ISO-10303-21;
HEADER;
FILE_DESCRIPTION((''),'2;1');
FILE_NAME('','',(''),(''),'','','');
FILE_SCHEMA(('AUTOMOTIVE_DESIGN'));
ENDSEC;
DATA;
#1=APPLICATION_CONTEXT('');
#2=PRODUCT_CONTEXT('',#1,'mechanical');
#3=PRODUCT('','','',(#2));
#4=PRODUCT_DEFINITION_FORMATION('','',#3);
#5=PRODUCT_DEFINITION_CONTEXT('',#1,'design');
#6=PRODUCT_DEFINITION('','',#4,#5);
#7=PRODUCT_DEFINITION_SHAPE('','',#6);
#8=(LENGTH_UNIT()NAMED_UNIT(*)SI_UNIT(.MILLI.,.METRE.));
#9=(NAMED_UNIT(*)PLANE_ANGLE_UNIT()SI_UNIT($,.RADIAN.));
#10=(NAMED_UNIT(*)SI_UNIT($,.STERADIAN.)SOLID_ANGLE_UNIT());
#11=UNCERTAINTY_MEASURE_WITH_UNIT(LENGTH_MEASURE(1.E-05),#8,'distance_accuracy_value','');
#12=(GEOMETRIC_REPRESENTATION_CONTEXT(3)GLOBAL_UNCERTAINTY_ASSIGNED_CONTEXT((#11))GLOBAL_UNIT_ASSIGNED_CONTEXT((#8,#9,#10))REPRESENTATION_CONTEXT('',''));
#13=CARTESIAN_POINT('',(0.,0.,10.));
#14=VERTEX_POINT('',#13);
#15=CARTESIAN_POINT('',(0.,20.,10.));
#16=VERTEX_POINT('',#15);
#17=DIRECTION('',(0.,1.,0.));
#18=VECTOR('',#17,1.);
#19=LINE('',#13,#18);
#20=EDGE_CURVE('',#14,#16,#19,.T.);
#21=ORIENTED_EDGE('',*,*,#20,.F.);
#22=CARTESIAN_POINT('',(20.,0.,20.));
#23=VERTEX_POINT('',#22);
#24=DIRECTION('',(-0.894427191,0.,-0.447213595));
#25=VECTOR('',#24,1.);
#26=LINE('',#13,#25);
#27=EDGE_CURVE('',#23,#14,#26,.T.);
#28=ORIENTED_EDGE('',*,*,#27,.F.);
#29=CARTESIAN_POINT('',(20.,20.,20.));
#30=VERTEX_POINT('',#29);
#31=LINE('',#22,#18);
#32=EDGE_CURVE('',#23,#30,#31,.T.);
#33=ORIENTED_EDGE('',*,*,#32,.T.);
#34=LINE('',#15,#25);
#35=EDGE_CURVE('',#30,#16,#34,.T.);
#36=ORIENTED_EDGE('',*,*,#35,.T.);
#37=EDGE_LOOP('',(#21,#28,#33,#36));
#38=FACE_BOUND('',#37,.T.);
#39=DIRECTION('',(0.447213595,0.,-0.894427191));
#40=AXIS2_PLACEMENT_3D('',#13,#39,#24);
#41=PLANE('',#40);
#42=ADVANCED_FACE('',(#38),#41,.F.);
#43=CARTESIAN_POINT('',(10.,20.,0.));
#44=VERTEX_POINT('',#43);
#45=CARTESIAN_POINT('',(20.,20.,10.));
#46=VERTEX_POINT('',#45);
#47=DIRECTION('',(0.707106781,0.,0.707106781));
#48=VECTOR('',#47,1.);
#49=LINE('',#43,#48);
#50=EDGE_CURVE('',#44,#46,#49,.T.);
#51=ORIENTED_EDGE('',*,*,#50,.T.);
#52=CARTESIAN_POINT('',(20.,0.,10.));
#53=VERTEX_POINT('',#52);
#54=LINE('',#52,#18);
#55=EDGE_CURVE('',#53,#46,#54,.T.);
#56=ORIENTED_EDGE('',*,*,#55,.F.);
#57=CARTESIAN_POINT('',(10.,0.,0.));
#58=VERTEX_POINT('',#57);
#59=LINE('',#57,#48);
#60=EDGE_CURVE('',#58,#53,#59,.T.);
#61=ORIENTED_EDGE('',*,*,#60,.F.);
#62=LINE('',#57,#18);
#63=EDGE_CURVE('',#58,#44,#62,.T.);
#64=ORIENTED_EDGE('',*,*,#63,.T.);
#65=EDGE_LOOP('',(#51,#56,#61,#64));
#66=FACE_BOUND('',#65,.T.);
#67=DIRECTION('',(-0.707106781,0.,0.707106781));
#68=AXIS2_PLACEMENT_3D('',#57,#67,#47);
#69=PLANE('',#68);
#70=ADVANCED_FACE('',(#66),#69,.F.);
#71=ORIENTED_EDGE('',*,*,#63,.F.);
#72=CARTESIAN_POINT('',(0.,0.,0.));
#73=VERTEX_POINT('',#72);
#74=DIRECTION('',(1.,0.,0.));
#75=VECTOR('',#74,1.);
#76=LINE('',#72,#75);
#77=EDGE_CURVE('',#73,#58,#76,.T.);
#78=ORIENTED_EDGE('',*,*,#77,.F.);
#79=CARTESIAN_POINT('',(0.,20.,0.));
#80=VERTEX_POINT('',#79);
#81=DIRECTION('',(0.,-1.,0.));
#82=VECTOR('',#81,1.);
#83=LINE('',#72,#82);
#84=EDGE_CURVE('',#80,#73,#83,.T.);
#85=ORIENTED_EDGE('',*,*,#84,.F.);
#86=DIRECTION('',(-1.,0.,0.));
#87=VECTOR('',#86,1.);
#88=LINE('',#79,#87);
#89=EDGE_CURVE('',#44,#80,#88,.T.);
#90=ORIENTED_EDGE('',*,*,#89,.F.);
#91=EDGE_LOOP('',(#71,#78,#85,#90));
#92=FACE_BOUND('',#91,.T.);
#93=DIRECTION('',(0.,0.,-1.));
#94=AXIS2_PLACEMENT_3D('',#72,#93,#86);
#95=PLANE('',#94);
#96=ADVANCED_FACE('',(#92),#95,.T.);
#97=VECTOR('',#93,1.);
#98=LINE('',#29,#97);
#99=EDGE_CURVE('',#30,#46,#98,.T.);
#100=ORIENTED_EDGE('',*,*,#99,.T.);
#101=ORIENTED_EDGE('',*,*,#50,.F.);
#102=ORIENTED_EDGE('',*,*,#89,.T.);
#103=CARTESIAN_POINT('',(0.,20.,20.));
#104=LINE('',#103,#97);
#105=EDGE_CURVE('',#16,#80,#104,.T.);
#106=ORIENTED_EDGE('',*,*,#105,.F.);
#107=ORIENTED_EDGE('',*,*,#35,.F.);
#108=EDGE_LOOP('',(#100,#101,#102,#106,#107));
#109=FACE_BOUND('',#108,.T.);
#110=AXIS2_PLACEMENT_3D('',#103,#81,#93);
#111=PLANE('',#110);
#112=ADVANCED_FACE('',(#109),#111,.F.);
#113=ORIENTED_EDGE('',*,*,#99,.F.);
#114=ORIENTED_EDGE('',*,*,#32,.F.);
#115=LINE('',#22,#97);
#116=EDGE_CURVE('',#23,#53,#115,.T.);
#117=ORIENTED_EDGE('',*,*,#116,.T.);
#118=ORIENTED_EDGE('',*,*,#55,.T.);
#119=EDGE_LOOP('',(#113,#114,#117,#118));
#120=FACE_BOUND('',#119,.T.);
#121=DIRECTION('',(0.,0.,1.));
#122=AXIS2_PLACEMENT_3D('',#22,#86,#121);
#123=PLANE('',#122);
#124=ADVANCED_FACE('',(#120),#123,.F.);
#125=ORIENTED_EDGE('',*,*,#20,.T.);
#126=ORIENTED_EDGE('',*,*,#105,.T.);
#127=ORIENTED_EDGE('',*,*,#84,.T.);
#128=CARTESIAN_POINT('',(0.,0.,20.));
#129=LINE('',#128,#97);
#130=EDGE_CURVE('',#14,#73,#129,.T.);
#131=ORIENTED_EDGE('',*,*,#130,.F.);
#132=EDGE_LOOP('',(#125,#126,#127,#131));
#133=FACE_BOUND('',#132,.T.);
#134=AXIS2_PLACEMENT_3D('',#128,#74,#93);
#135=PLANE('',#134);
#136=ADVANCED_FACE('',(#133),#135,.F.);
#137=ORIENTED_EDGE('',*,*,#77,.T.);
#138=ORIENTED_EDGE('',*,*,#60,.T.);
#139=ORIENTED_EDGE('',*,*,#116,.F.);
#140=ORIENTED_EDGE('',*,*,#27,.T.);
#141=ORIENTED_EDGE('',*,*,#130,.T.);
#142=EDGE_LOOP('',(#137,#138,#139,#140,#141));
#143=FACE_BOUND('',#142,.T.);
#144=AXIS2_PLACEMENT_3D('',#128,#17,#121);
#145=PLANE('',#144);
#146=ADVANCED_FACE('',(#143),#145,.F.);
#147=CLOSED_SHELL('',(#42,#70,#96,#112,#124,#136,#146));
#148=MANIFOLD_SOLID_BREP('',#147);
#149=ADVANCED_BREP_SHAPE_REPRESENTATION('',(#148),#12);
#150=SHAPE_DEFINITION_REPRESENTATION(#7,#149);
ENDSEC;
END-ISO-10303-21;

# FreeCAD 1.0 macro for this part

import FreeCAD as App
import Part
import Sketcher

doc = App.newDocument("Part")
body = doc.addObject("PartDesign::Body", "Body")

# Sketch on XY plane
sketch1 = doc.addObject("Sketcher::SketchObject", "Sketch")
body.addObject(sketch1)
sketch1.AttachmentSupport = (doc.XY_Plane, [""])
sketch1.MapMode = "FlatFace"
sketch1.addGeometry(Part.LineSegment(App.Vector(0, 20, 0), App.Vector(0, 0, 0)), False)
sketch1.addGeometry(Part.LineSegment(App.Vector(0, 0, 0), App.Vector(20, 0, 0)), False)
sketch1.addGeometry(Part.LineSegment(App.Vector(20, 0, 0), App.Vector(20, 20, 0)), False)
sketch1.addGeometry(Part.LineSegment(App.Vector(20, 20, 0), App.Vector(0, 20, 0)), False)
sketch1.addConstraint(Sketcher.Constraint("Coincident", 0, 2, 1, 1))
sketch1.addConstraint(Sketcher.Constraint("Coincident", 1, 2, 2, 1))
sketch1.addConstraint(Sketcher.Constraint("Coincident", 2, 2, 3, 1))
sketch1.addConstraint(Sketcher.Constraint("Coincident", 3, 2, 0, 1))
sketch1.addConstraint(Sketcher.Constraint("Vertical", 0))
sketch1.addConstraint(Sketcher.Constraint("Horizontal", 1))
sketch1.addConstraint(Sketcher.Constraint("Vertical", 2))
sketch1.addConstraint(Sketcher.Constraint("Horizontal", 3))
sketch1.addConstraint(Sketcher.Constraint("Coincident", 0, 2, -1, 1))
sketch1.addConstraint(Sketcher.Constraint("Equal", 3, 0))
sketch1.addConstraint(Sketcher.Constraint("DistanceX", 1, 1, 1, 2, 20.0))
pad1 = doc.addObject("PartDesign::Pad", "Pad")
body.addObject(pad1)
pad1.Profile = sketch1
pad1.Length = 20

# Sketch on XZ plane
sketch2 = doc.addObject("Sketcher::SketchObject", "Sketch001")
body.addObject(sketch2)
sketch2.AttachmentSupport = (doc.XZ_Plane, [""])
sketch2.MapMode = "FlatFace"
sketch2.AttachmentOffset = App.Placement(App.Vector(0, 0, -20), App.Rotation())
sketch2.addGeometry(Part.LineSegment(App.Vector(20, 0, 0), App.Vector(10, 0, 0)), False)
sketch2.addGeometry(Part.LineSegment(App.Vector(10, 0, 0), App.Vector(20, 10, 0)), False)
sketch2.addGeometry(Part.LineSegment(App.Vector(20, 10, 0), App.Vector(20, 0, 0)), False)
sketch2.addConstraint(Sketcher.Constraint("Coincident", 0, 2, 1, 1))
sketch2.addConstraint(Sketcher.Constraint("Coincident", 1, 2, 2, 1))
sketch2.addConstraint(Sketcher.Constraint("Coincident", 2, 2, 0, 1))
sketch2.addConstraint(Sketcher.Constraint("Horizontal", 0))
sketch2.addConstraint(Sketcher.Constraint("Vertical", 2))
sketch2.addConstraint(Sketcher.Constraint("PointOnObject", 0, 2, -1))
sketch2.addConstraint(Sketcher.Constraint("Equal", 0, 2))
sketch2.addConstraint(Sketcher.Constraint("DistanceX", 0, 2, 0, 1, 10.0))
sketch2.addConstraint(Sketcher.Constraint("DistanceX", -1, 1, 0, 2, 10.0))
pocket1 = doc.addObject("PartDesign::Pocket", "Pocket")
body.addObject(pocket1)
pocket1.Profile = sketch2
pocket1.Length = 20
pocket1.Reversed = True

# Sketch on XZ plane
sketch3 = doc.addObject("Sketcher::SketchObject", "Sketch002")
body.addObject(sketch3)
sketch3.AttachmentSupport = (doc.XZ_Plane, [""])
sketch3.MapMode = "FlatFace"
sketch3.AttachmentOffset = App.Placement(App.Vector(0, 0, -20), App.Rotation())
sketch3.addGeometry(Part.LineSegment(App.Vector(0, 20, 0), App.Vector(20, 20, 0)), False)
sketch3.addGeometry(Part.LineSegment(App.Vector(20, 20, 0), App.Vector(0, 10, 0)), False)
sketch3.addGeometry(Part.LineSegment(App.Vector(0, 10, 0), App.Vector(0, 20, 0)), False)
sketch3.addConstraint(Sketcher.Constraint("Coincident", 0, 2, 1, 1))
sketch3.addConstraint(Sketcher.Constraint("Coincident", 1, 2, 2, 1))
sketch3.addConstraint(Sketcher.Constraint("Coincident", 2, 2, 0, 1))
sketch3.addConstraint(Sketcher.Constraint("Horizontal", 0))
sketch3.addConstraint(Sketcher.Constraint("Vertical", 2))
sketch3.addConstraint(Sketcher.Constraint("PointOnObject", 1, 2, -2))
sketch3.addConstraint(Sketcher.Constraint("DistanceX", 0, 1, 0, 2, 20.0))
sketch3.addConstraint(Sketcher.Constraint("DistanceY", 2, 1, 2, 2, 10.0))
sketch3.addConstraint(Sketcher.Constraint("DistanceY", -1, 1, 0, 2, 20.0))
pocket2 = doc.addObject("PartDesign::Pocket", "Pocket001")
body.addObject(pocket2)
pocket2.Profile = sketch3
pocket2.Length = 20
pocket2.Reversed = True

doc.recompute()
